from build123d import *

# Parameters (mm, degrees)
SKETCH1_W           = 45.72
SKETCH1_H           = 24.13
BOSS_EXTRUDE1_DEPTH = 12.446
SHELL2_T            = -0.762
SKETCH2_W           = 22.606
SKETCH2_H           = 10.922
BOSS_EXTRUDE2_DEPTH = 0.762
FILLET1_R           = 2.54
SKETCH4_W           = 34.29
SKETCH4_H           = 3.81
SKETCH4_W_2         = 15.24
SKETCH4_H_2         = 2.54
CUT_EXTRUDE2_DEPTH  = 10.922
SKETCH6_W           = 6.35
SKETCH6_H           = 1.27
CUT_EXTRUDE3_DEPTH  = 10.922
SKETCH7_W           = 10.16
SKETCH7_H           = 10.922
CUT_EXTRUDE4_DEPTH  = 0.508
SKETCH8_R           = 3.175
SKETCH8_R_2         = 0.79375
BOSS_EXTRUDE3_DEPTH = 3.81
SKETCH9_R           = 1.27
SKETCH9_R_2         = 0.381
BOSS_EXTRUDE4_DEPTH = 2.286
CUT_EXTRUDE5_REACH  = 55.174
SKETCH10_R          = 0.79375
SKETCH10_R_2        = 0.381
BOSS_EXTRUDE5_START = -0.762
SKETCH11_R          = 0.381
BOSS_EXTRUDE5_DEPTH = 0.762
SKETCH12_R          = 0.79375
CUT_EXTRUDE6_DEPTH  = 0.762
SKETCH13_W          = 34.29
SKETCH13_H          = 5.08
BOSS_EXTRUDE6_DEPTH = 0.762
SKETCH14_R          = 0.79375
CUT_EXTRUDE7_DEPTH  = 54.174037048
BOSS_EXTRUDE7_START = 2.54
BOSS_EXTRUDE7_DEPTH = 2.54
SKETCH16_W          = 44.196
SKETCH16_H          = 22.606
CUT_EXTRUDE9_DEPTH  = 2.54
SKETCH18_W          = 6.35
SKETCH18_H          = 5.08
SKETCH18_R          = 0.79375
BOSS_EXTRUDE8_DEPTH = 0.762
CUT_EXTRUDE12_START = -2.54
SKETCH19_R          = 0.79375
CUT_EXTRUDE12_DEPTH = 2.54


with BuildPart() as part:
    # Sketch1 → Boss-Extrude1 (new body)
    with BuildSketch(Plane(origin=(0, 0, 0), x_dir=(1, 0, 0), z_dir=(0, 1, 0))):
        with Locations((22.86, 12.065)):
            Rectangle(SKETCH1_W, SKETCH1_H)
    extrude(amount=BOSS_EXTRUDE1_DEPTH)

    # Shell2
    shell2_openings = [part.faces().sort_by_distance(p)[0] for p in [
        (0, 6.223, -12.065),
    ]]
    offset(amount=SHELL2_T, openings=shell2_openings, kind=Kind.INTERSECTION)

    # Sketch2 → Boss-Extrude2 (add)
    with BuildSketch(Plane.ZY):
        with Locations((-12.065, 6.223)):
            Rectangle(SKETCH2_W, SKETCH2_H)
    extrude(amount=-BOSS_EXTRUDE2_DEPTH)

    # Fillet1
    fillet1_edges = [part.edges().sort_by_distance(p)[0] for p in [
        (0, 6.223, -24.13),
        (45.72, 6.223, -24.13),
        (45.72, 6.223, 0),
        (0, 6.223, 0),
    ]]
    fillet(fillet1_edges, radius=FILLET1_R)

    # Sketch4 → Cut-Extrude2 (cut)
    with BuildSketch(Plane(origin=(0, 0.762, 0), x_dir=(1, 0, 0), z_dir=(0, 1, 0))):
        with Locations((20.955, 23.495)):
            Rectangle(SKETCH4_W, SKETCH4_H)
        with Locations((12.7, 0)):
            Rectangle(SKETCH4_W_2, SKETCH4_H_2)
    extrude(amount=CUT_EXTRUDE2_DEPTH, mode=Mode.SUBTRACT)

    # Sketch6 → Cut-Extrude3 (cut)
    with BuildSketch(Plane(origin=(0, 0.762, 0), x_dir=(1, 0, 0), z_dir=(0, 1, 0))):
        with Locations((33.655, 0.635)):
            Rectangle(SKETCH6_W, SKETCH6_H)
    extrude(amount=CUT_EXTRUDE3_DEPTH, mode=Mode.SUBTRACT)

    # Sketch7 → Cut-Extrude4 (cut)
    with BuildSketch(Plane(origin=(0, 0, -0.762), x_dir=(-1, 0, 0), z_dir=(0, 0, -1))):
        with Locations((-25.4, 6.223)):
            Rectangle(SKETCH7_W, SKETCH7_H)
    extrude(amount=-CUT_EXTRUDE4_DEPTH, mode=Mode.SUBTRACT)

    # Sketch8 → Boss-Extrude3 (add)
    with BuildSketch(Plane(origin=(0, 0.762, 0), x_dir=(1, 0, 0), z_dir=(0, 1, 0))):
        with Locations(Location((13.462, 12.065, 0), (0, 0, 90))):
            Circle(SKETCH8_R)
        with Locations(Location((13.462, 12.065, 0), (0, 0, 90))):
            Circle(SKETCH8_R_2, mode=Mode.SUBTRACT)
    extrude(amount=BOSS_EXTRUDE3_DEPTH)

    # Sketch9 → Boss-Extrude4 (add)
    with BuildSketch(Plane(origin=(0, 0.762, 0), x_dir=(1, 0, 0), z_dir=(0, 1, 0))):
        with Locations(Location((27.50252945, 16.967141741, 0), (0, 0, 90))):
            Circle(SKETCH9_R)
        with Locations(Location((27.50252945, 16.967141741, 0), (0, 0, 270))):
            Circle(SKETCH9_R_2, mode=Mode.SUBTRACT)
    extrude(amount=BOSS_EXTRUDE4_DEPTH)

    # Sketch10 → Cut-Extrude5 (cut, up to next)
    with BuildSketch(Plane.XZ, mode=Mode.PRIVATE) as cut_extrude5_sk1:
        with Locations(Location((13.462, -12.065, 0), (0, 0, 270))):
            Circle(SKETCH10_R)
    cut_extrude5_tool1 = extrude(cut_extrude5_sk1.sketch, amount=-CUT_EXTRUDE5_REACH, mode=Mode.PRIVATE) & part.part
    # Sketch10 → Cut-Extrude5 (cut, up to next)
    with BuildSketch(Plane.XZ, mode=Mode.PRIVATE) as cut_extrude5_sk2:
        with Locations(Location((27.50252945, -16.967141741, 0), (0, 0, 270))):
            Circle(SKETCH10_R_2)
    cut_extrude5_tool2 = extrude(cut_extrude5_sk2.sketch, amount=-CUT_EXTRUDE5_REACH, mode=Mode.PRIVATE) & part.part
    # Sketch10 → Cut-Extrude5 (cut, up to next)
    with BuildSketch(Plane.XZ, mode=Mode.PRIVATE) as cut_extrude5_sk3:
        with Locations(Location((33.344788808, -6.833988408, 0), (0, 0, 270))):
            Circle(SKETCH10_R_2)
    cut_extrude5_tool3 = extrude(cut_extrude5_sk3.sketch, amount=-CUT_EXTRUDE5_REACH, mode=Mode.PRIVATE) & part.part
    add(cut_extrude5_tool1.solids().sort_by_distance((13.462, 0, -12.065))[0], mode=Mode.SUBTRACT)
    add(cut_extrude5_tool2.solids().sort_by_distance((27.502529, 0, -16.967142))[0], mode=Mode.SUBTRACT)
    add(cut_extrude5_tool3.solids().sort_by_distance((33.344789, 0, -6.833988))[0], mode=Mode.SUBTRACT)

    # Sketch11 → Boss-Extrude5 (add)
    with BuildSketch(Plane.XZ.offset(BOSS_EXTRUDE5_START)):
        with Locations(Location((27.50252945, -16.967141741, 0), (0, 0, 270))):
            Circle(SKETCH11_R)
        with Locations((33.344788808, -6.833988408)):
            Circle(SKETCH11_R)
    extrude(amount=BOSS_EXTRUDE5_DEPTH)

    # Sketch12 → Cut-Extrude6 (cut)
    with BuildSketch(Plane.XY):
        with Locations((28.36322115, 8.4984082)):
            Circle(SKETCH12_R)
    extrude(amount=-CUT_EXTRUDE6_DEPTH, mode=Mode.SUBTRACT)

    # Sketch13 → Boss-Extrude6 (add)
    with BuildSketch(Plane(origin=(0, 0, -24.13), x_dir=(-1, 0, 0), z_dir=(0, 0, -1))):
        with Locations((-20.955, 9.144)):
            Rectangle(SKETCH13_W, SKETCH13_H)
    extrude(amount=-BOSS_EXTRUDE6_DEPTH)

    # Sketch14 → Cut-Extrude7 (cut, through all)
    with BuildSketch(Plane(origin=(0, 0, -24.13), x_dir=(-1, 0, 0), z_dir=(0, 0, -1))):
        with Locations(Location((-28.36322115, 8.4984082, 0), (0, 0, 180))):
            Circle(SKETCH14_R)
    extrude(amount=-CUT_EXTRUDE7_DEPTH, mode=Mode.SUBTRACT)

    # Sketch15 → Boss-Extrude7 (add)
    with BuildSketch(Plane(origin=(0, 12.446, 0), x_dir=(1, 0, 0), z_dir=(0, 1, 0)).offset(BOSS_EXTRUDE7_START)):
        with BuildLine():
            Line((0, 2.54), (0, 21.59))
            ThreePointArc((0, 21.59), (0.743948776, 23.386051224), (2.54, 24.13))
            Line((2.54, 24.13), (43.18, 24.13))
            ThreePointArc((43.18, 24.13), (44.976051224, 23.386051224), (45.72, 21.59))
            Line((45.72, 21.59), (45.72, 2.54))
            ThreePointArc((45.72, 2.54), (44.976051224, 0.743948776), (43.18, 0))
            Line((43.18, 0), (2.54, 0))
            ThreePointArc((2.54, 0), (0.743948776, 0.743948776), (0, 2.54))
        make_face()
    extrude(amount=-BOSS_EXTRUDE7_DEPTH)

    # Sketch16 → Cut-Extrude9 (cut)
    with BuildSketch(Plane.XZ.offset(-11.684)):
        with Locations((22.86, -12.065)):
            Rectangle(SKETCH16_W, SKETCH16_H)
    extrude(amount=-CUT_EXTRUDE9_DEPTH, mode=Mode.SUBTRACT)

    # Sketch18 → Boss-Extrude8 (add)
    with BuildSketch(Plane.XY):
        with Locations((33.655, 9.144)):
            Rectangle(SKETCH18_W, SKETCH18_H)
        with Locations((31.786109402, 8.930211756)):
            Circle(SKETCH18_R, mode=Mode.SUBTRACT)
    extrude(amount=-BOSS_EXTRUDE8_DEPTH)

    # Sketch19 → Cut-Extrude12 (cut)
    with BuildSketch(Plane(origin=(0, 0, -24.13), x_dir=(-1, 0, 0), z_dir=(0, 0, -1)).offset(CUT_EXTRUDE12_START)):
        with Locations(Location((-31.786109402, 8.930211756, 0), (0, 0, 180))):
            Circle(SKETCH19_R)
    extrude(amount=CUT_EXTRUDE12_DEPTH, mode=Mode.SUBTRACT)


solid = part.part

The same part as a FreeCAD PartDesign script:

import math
import FreeCAD as App
import Part
import Sketcher
from FreeCAD import Vector
Q = App.Units.Quantity


def edges_at(feature, points):
    """Names of the edges that pass closest to the given points."""
    edges = feature.Shape.Edges
    near = lambda p: min(range(len(edges)), key=lambda i: edges[i].distToShape(Part.Vertex(*p))[0])
    return sorted({f"Edge{near(p) + 1}" for p in points})


def faces_at(feature, points):
    """Names of the faces that lie closest to the given points."""
    faces = feature.Shape.Faces
    near = lambda p: min(range(len(faces)), key=lambda i: faces[i].distToShape(Part.Vertex(*p))[0])
    return sorted({f"Face{near(p) + 1}" for p in points})


def add_polygon(sketch, points):
    """Adds a closed chain of lines whose ends are joined by coincident constraints."""
    first, n = sketch.GeometryCount, len(points)
    for a, b in zip(points, points[1:] + points[:1]):
        sketch.addGeometry(Part.LineSegment(App.Vector(*a, 0), App.Vector(*b, 0)), False)
    for i in range(n):
        sketch.addConstraint(Sketcher.Constraint("Coincident", first + i, 2, first + (i + 1) % n, 1))

doc = App.newDocument("Part")
params = doc.addObject("Spreadsheet::Sheet", "Params")
for row, (alias, value) in enumerate([
    ("sketch1_width", "1.8 in"),
    ("sketch1_height", "0.95 in"),
    ("pad1_length", "0.49 in"),
    ("thickness_wall", "0.03 in"),
    ("sketch2_width", "0.43 in"),
    ("sketch2_height", "0.89 in"),
    ("pad2_length", "0.03 in"),
    ("fillet_radius", "0.1 in"),
    ("sketch3_width", "0.6 in"),
    ("sketch3_height", "0.1 in"),
    ("sketch3_width2", "1.35 in"),
    ("sketch3_height2", "0.15 in"),
    ("pocket1_length", "0.43 in"),
    ("sketch4_width", "0.25 in"),
    ("sketch4_height", "0.05 in"),
    ("pocket2_length", "0.43 in"),
    ("sketch5_width", "0.4 in"),
    ("sketch5_height", "0.43 in"),
    ("pocket3_length", "0.02 in"),
    ("sketch6_diameter", "0.25 in"),
    ("sketch6_diameter2", "0.0625 in"),
    ("pad3_length", "0.15 in"),
    ("sketch7_diameter", "0.1 in"),
    ("sketch7_diameter2", "0.03 in"),
    ("pad4_length", "0.09 in"),
    ("sketch8_diameter", "0.0625 in"),
    ("sketch9_diameter", "0.03 in"),
    ("sketch10_diameter", "0.03 in"),
    ("sketch11_diameter", "0.03 in"),
    ("pad5_length", "0.03 in"),
    ("sketch12_diameter", "0.0625 in"),
    ("pocket7_length", "0.03 in"),
    ("sketch13_height", "0.2 in"),
    ("sketch13_width", "1.35 in"),
    ("pad6_length", "0.03 in"),
    ("sketch14_diameter", "0.0625 in"),
    ("sketch15_radius", "0.1 in"),
    ("sketch15_width", "1.6 in"),
    ("sketch15_height", "0.75 in"),
    ("pad7_length", "0.1 in"),
    ("sketch16_width", "1.74 in"),
    ("sketch16_height", "0.89 in"),
    ("pocket9_length", "0.1 in"),
    ("sketch17_diameter", "0.0625 in"),
    ("sketch17_height", "0.2 in"),
    ("sketch17_width", "0.25 in"),
    ("pad8_length", "0.03 in"),
    ("sketch18_diameter", "0.0625 in"),
    ("pocket10_length", "0.1 in"),
], start=1):
    params.set(f"A{row}", alias)
    params.set(f"B{row}", "=" + value)
    params.setAlias(f"B{row}", alias)

body = doc.addObject("PartDesign::Body", "Body")

sketch1 = doc.addObject("Sketcher::SketchObject", "Sketch")
body.addObject(sketch1)
sketch1.AttachmentSupport = (doc.XZ_Plane, [""])
sketch1.MapMode = "FlatFace"
add_polygon(sketch1, [(0, -24), (0, 0), (46, 0), (46, -24)])
sketch1.addConstraint([
    Sketcher.Constraint("Vertical", 0),
    Sketcher.Constraint("Horizontal", 1),
    Sketcher.Constraint("Vertical", 2),
    Sketcher.Constraint("Horizontal", 3),
    Sketcher.Constraint("Coincident", 0, 2, -1, 1),
    Sketcher.Constraint("DistanceX", 1, 1, 1, 2, Q("1.8 in")),
    Sketcher.Constraint("DistanceY", 0, 1, 0, 2, Q("0.95 in")),
])
sketch1.setExpression("Constraints[9]", "Params.sketch1_width")
sketch1.setExpression("Constraints[10]", "Params.sketch1_height")
pad1 = doc.addObject("PartDesign::Pad", "Pad")
body.addObject(pad1)
pad1.Profile = sketch1
pad1.setExpression("Length", "Params.pad1_length")
pad1.Reversed = True
doc.recompute()

thickness = doc.addObject("PartDesign::Thickness", "Thickness")
body.addObject(thickness)
thickness.Base = (pad1, faces_at(pad1, [(0, 6.223, -12.065)]))
thickness.setExpression("Value", "Params.thickness_wall")
thickness.Reversed = True
thickness.Join = "Intersection"

sketch2 = doc.addObject("Sketcher::SketchObject", "Sketch001")
body.addObject(sketch2)
sketch2.AttachmentSupport = (doc.YZ_Plane, [""])
sketch2.MapMode = "FlatFace"
add_polygon(sketch2, [(12, -23), (1, -23), (1, -1), (12, -1)])
sketch2.addConstraint([
    Sketcher.Constraint("Horizontal", 0),
    Sketcher.Constraint("Vertical", 1),
    Sketcher.Constraint("Horizontal", 2),
    Sketcher.Constraint("Vertical", 3),
    Sketcher.Constraint("DistanceX", 0, 2, 0, 1, Q("0.43 in")),
    Sketcher.Constraint("DistanceY", 1, 1, 1, 2, Q("0.89 in")),
    Sketcher.Constraint("DistanceX", -1, 1, 0, 2, Q("0.03 in")),
    Sketcher.Constraint("DistanceY", 0, 2, -1, 1, Q("0.92 in")),
])
sketch2.setExpression("Constraints[8]", "Params.sketch2_width")
sketch2.setExpression("Constraints[9]", "Params.sketch2_height")
pad2 = doc.addObject("PartDesign::Pad", "Pad001")
body.addObject(pad2)
pad2.Profile = sketch2
pad2.setExpression("Length", "Params.pad2_length")
doc.recompute()

fillet = doc.addObject("PartDesign::Fillet", "Fillet")
body.addObject(fillet)
fillet.Base = (pad2, edges_at(pad2, [
    (0, 6.223, -24.13),
    (45.72, 6.223, -24.13),
    (45.72, 6.223, 0),
    (0, 6.223, 0),
]))
fillet.setExpression("Radius", "Params.fillet_radius")

sketch3 = doc.addObject("Sketcher::SketchObject", "Sketch002")
body.addObject(sketch3)
sketch3.AttachmentSupport = (doc.XZ_Plane, [""])
sketch3.MapMode = "FlatFace"
sketch3.AttachmentOffset = App.Placement(Vector(0, 0, -0.03 * 25.4), App.Rotation())
add_polygon(sketch3, [(3.8, -25.4), (3.8, -21.6), (38.1, -21.6), (38.1, -25.4)])
add_polygon(sketch3, [(5.1, -1.3), (5.1, 1.3), (20.3, 1.3), (20.3, -1.3)])
sketch3.addConstraint([
    Sketcher.Constraint("Vertical", 0),
    Sketcher.Constraint("Horizontal", 1),
    Sketcher.Constraint("Vertical", 2),
    Sketcher.Constraint("Horizontal", 3),
    Sketcher.Constraint("Vertical", 4),
    Sketcher.Constraint("Horizontal", 5),
    Sketcher.Constraint("Vertical", 6),
    Sketcher.Constraint("Horizontal", 7),
    Sketcher.Constraint("DistanceX", 5, 1, 5, 2, Q("0.6 in")),
    Sketcher.Constraint("DistanceY", 4, 1, 4, 2, Q("0.1 in")),
    Sketcher.Constraint("DistanceY", 2, 2, -1, 1, Q("1 in")),
    Sketcher.Constraint("DistanceX", 1, 1, 1, 2, Q("1.35 in")),
    Sketcher.Constraint("DistanceY", 0, 1, 0, 2, Q("0.15 in")),
    Sketcher.Constraint("DistanceX", -1, 1, 1, 2, Q("1.5 in")),
    Sketcher.Constraint("DistanceX", -1, 1, 4, 2, Q("0.2 in")),
    Sketcher.Constraint("DistanceY", 0, 2, 4, 2, Q("0.9 in")),
])
sketch3.setExpression("Constraints[16]", "Params.sketch3_width")
sketch3.setExpression("Constraints[17]", "Params.sketch3_height")
sketch3.setExpression("Constraints[19]", "Params.sketch3_width2")
sketch3.setExpression("Constraints[20]", "Params.sketch3_height2")
pocket1 = doc.addObject("PartDesign::Pocket", "Pocket")
body.addObject(pocket1)
pocket1.Profile = sketch3
pocket1.setExpression("Length", "Params.pocket1_length")

sketch4 = doc.addObject("Sketcher::SketchObject", "Sketch003")
body.addObject(sketch4)
sketch4.AttachmentSupport = (doc.XZ_Plane, [""])
sketch4.MapMode = "FlatFace"
sketch4.AttachmentOffset = App.Placement(Vector(0, 0, -0.03 * 25.4), App.Rotation())
add_polygon(sketch4, [(30.5, -1.3), (30.5, 0), (36.8, 0), (36.8, -1.3)])
sketch4.addConstraint([
    Sketcher.Constraint("Vertical", 0),
    Sketcher.Constraint("Horizontal", 1),
    Sketcher.Constraint("Vertical", 2),
    Sketcher.Constraint("Horizontal", 3),
    Sketcher.Constraint("PointOnObject", 0, 2, -1),
    Sketcher.Constraint("DistanceX", 1, 1, 1, 2, Q("0.25 in")),
    Sketcher.Constraint("DistanceY", 0, 1, 0, 2, Q("0.05 in")),
    Sketcher.Constraint("DistanceX", -1, 1, 0, 2, Q("1.2 in")),
])
sketch4.setExpression("Constraints[9]", "Params.sketch4_width")
sketch4.setExpression("Constraints[10]", "Params.sketch4_height")
pocket2 = doc.addObject("PartDesign::Pocket", "Pocket001")
body.addObject(pocket2)
pocket2.Profile = sketch4
pocket2.setExpression("Length", "Params.pocket2_length")

sketch5 = doc.addObject("Sketcher::SketchObject", "Sketch004")
body.addObject(sketch5)
sketch5.AttachmentSupport = (doc.XY_Plane, [""])
sketch5.MapMode = "FlatFace"
sketch5.AttachmentOffset = App.Placement(Vector(0, 0, -0.03 * 25.4), App.Rotation())
add_polygon(sketch5, [(30, 12), (30, 1), (20, 1), (20, 12)])
sketch5.addConstraint([
    Sketcher.Constraint("Vertical", 0),
    Sketcher.Constraint("Horizontal", 1),
    Sketcher.Constraint("Vertical", 2),
    Sketcher.Constraint("Horizontal", 3),
    Sketcher.Constraint("DistanceX", 1, 2, 1, 1, Q("0.4 in")),
    Sketcher.Constraint("DistanceY", 0, 2, 0, 1, Q("0.43 in")),
    Sketcher.Constraint("DistanceX", -1, 1, 0, 2, Q("1.2 in")),
    Sketcher.Constraint("DistanceY", -1, 1, 0, 2, Q("0.03 in")),
])
sketch5.setExpression("Constraints[8]", "Params.sketch5_width")
sketch5.setExpression("Constraints[9]", "Params.sketch5_height")
pocket3 = doc.addObject("PartDesign::Pocket", "Pocket002")
body.addObject(pocket3)
pocket3.Profile = sketch5
pocket3.setExpression("Length", "Params.pocket3_length")
pocket3.Reversed = True

sketch6 = doc.addObject("Sketcher::SketchObject", "Sketch005")
body.addObject(sketch6)
sketch6.AttachmentSupport = (doc.XZ_Plane, [""])
sketch6.MapMode = "FlatFace"
sketch6.AttachmentOffset = App.Placement(Vector(0, 0, -0.03 * 25.4), App.Rotation())
sketch6.addGeometry([
    Part.Circle(Vector(13.5, -12.1, 0), Vector(0, 0, 1), 3.2),
    Part.Circle(Vector(13.5, -12.1, 0), Vector(0, 0, 1), 0.8),
], False)
sketch6.addConstraint([
    Sketcher.Constraint("Coincident", 1, 3, 0, 3),
    Sketcher.Constraint("Diameter", 0, Q("0.25 in")),
    Sketcher.Constraint("Diameter", 1, Q("0.0625 in")),
    Sketcher.Constraint("DistanceX", -1, 1, 0, 3, Q("0.53 in")),
    Sketcher.Constraint("DistanceY", 0, 3, -1, 1, Q("0.475 in")),
])
sketch6.setExpression("Constraints[1]", "Params.sketch6_diameter")
sketch6.setExpression("Constraints[2]", "Params.sketch6_diameter2")
pad3 = doc.addObject("PartDesign::Pad", "Pad002")
body.addObject(pad3)
pad3.Profile = sketch6
pad3.setExpression("Length", "Params.pad3_length")
pad3.Reversed = True

sketch7 = doc.addObject("Sketcher::SketchObject", "Sketch006")
body.addObject(sketch7)
sketch7.AttachmentSupport = (doc.XZ_Plane, [""])
sketch7.MapMode = "FlatFace"
sketch7.AttachmentOffset = App.Placement(Vector(0, 0, -0.03 * 25.4), App.Rotation())
sketch7.addGeometry([
    Part.Circle(Vector(27.5, -16.97, 0), Vector(0, 0, 1), 1.27),
    Part.Circle(Vector(27.5, -16.97, 0), Vector(0, 0, 1), 0.38),
], False)
sketch7.addConstraint([
    Sketcher.Constraint("Coincident", 1, 3, 0, 3),
    Sketcher.Constraint("Diameter", 0, Q("0.1 in")),
    Sketcher.Constraint("Diameter", 1, Q("0.03 in")),
    Sketcher.Constraint("DistanceX", -1, 1, 0, 3, Q("27.502529 mm")),
    Sketcher.Constraint("DistanceY", 0, 3, -1, 1, Q("16.967142 mm")),
])
sketch7.setExpression("Constraints[1]", "Params.sketch7_diameter")
sketch7.setExpression("Constraints[2]", "Params.sketch7_diameter2")
pad4 = doc.addObject("PartDesign::Pad", "Pad003")
body.addObject(pad4)
pad4.Profile = sketch7
pad4.setExpression("Length", "Params.pad4_length")
pad4.Reversed = True

sketch8 = doc.addObject("Sketcher::SketchObject", "Sketch007")
body.addObject(sketch8)
sketch8.AttachmentSupport = (doc.XZ_Plane, [""])
sketch8.MapMode = "FlatFace"
sketch8.addGeometry(Part.Circle(Vector(13.5, -12.1, 0), Vector(0, 0, 1), 0.8), False)
sketch8.addConstraint([
    Sketcher.Constraint("Diameter", 0, Q("0.0625 in")),
    Sketcher.Constraint("DistanceX", -1, 1, 0, 3, Q("0.53 in")),
    Sketcher.Constraint("DistanceY", 0, 3, -1, 1, Q("0.475 in")),
])
sketch8.setExpression("Constraints[0]", "Params.sketch8_diameter")
pocket4 = doc.addObject("PartDesign::Pocket", "Pocket003")
body.addObject(pocket4)
pocket4.Profile = sketch8
pocket4.Type = "UpToFirst"

sketch9 = doc.addObject("Sketcher::SketchObject", "Sketch008")
body.addObject(sketch9)
sketch9.AttachmentSupport = (doc.XZ_Plane, [""])
sketch9.MapMode = "FlatFace"
sketch9.addGeometry(Part.Circle(Vector(27.5, -16.97, 0), Vector(0, 0, 1), 0.38), False)
sketch9.addConstraint([
    Sketcher.Constraint("Diameter", 0, Q("0.03 in")),
    Sketcher.Constraint("DistanceX", -1, 1, 0, 3, Q("27.502529 mm")),
    Sketcher.Constraint("DistanceY", 0, 3, -1, 1, Q("16.967142 mm")),
])
sketch9.setExpression("Constraints[0]", "Params.sketch9_diameter")
pocket5 = doc.addObject("PartDesign::Pocket", "Pocket004")
body.addObject(pocket5)
pocket5.Profile = sketch9
pocket5.Type = "UpToFirst"

sketch10 = doc.addObject("Sketcher::SketchObject", "Sketch009")
body.addObject(sketch10)
sketch10.AttachmentSupport = (doc.XZ_Plane, [""])
sketch10.MapMode = "FlatFace"
sketch10.addGeometry(Part.Circle(Vector(33.34, -6.83, 0), Vector(0, 0, 1), 0.38), False)
sketch10.addConstraint([
    Sketcher.Constraint("Diameter", 0, Q("0.03 in")),
    Sketcher.Constraint("DistanceX", -1, 1, 0, 3, Q("33.344789 mm")),
    Sketcher.Constraint("DistanceY", 0, 3, -1, 1, Q("6.833988 mm")),
])
sketch10.setExpression("Constraints[0]", "Params.sketch10_diameter")
pocket6 = doc.addObject("PartDesign::Pocket", "Pocket005")
body.addObject(pocket6)
pocket6.Profile = sketch10
pocket6.Type = "UpToFirst"

sketch11 = doc.addObject("Sketcher::SketchObject", "Sketch010")
body.addObject(sketch11)
sketch11.AttachmentSupport = (doc.XZ_Plane, [""])
sketch11.MapMode = "FlatFace"
sketch11.AttachmentOffset = App.Placement(Vector(0, 0, -0.03 * 25.4), App.Rotation())
sketch11.addGeometry([
    Part.Circle(Vector(27.5, -16.97, 0), Vector(0, 0, 1), 0.38),
    Part.Circle(Vector(33.34, -6.83, 0), Vector(0, 0, 1), 0.38),
], False)
sketch11.addConstraint([
    Sketcher.Constraint("Equal", 0, 1),
    Sketcher.Constraint("Diameter", 0, Q("0.03 in")),
    Sketcher.Constraint("DistanceX", -1, 1, 0, 3, Q("27.502529 mm")),
    Sketcher.Constraint("DistanceY", 0, 3, -1, 1, Q("16.967142 mm")),
    Sketcher.Constraint("DistanceX", -1, 1, 1, 3, Q("33.344789 mm")),
    Sketcher.Constraint("DistanceY", 1, 3, -1, 1, Q("6.833988 mm")),
])
sketch11.setExpression("Constraints[1]", "Params.sketch11_diameter")
pad5 = doc.addObject("PartDesign::Pad", "Pad004")
body.addObject(pad5)
pad5.Profile = sketch11
pad5.setExpression("Length", "Params.pad5_length")

sketch12 = doc.addObject("Sketcher::SketchObject", "Sketch011")
body.addObject(sketch12)
sketch12.AttachmentSupport = (doc.XY_Plane, [""])
sketch12.MapMode = "FlatFace"
sketch12.addGeometry(Part.Circle(Vector(28.4, 8.5, 0), Vector(0, 0, 1), 0.8), False)
sketch12.addConstraint([
    Sketcher.Constraint("Diameter", 0, Q("0.0625 in")),
    Sketcher.Constraint("DistanceX", -1, 1, 0, 3, Q("28.363221 mm")),
    Sketcher.Constraint("DistanceY", -1, 1, 0, 3, Q("8.498408 mm")),
])
sketch12.setExpression("Constraints[0]", "Params.sketch12_diameter")
pocket7 = doc.addObject("PartDesign::Pocket", "Pocket006")
body.addObject(pocket7)
pocket7.Profile = sketch12
pocket7.setExpression("Length", "Params.pocket7_length")

sketch13 = doc.addObject("Sketcher::SketchObject", "Sketch012")
body.addObject(sketch13)
sketch13.AttachmentSupport = (doc.XY_Plane, [""])
sketch13.MapMode = "FlatFace"
sketch13.AttachmentOffset = App.Placement(Vector(0, 0, -0.95 * 25.4), App.Rotation())
add_polygon(sketch13, [(38, 12), (38, 7), (4, 7), (4, 12)])
sketch13.addConstraint([
    Sketcher.Constraint("Vertical", 0),
    Sketcher.Constraint("Horizontal", 1),
    Sketcher.Constraint("Vertical", 2),
    Sketcher.Constraint("Horizontal", 3),
    Sketcher.Constraint("DistanceY", 0, 2, 0, 1, Q("0.2 in")),
    Sketcher.Constraint("DistanceX", 1, 2, 1, 1, Q("1.35 in")),
    Sketcher.Constraint("DistanceX", -1, 1, 0, 2, Q("1.5 in")),
    Sketcher.Constraint("DistanceY", -1, 1, 0, 2, Q("0.26 in")),
])
sketch13.setExpression("Constraints[8]", "Params.sketch13_height")
sketch13.setExpression("Constraints[9]", "Params.sketch13_width")
pad6 = doc.addObject("PartDesign::Pad", "Pad005")
body.addObject(pad6)
pad6.Profile = sketch13
pad6.setExpression("Length", "Params.pad6_length")

sketch14 = doc.addObject("Sketcher::SketchObject", "Sketch013")
body.addObject(sketch14)
sketch14.AttachmentSupport = (doc.XY_Plane, [""])
sketch14.MapMode = "FlatFace"
sketch14.AttachmentOffset = App.Placement(Vector(0, 0, -0.95 * 25.4), App.Rotation())
sketch14.addGeometry(Part.Circle(Vector(28.4, 8.5, 0), Vector(0, 0, 1), 0.8), False)
sketch14.addConstraint([
    Sketcher.Constraint("Diameter", 0, Q("0.0625 in")),
    Sketcher.Constraint("DistanceX", -1, 1, 0, 3, Q("28.363221 mm")),
    Sketcher.Constraint("DistanceY", -1, 1, 0, 3, Q("8.498408 mm")),
])
sketch14.setExpression("Constraints[0]", "Params.sketch14_diameter")
pocket8 = doc.addObject("PartDesign::Pocket", "Pocket007")
body.addObject(pocket8)
pocket8.Profile = sketch14
pocket8.Type = "ThroughAll"
pocket8.Reversed = True

sketch15 = doc.addObject("Sketcher::SketchObject", "Sketch014")
body.addObject(sketch15)
sketch15.AttachmentSupport = (doc.XZ_Plane, [""])
sketch15.MapMode = "FlatFace"
sketch15.AttachmentOffset = App.Placement(Vector(0, 0, -0.59 * 25.4), App.Rotation())
sketch15.addGeometry([
    Part.LineSegment(Vector(0, -21.6, 0), Vector(0, -2.5, 0)),
    Part.ArcOfCircle(Part.Circle(Vector(2.5, -2.5, 0), Vector(0, 0, 1), 2.5), math.radians(90), math.radians(180)),
    Part.LineSegment(Vector(2.5, 0, 0), Vector(43.2, 0, 0)),
    Part.ArcOfCircle(Part.Circle(Vector(43.2, -2.5, 0), Vector(0, 0, 1), 2.5), math.radians(0), math.radians(90)),
    Part.LineSegment(Vector(45.7, -2.5, 0), Vector(45.7, -21.6, 0)),
    Part.ArcOfCircle(Part.Circle(Vector(43.2, -21.6, 0), Vector(0, 0, 1), 2.5), math.radians(-90), math.radians(0)),
    Part.LineSegment(Vector(43.2, -24.1, 0), Vector(2.5, -24.1, 0)),
    Part.ArcOfCircle(Part.Circle(Vector(2.5, -21.6, 0), Vector(0, 0, 1), 2.5), math.radians(-180), math.radians(-90)),
], False)
sketch15.addConstraint([
    Sketcher.Constraint("Tangent", 0, 2, 1, 2),
    Sketcher.Constraint("Tangent", 1, 1, 2, 1),
    Sketcher.Constraint("Tangent", 2, 2, 3, 2),
    Sketcher.Constraint("Tangent", 3, 1, 4, 1),
    Sketcher.Constraint("Tangent", 4, 2, 5, 2),
    Sketcher.Constraint("Tangent", 5, 1, 6, 1),
    Sketcher.Constraint("Tangent", 6, 2, 7, 2),
    Sketcher.Constraint("Tangent", 7, 1, 0, 1),
    Sketcher.Constraint("Vertical", 0),
    Sketcher.Constraint("Horizontal", 2),
    Sketcher.Constraint("Vertical", 4),
    Sketcher.Constraint("Horizontal", 6),
    Sketcher.Constraint("Equal", 1, 3),
    Sketcher.Constraint("Equal", 3, 5),
    Sketcher.Constraint("Equal", 5, 7),
    Sketcher.Constraint("PointOnObject", 0, 2, -2),
    Sketcher.Constraint("PointOnObject", 1, 1, -1),
    Sketcher.Constraint("Radius", 1, Q("0.1 in")),
    Sketcher.Constraint("DistanceX", 2, 1, 2, 2, Q("1.6 in")),
    Sketcher.Constraint("DistanceY", 0, 1, 0, 2, Q("0.75 in")),
])
sketch15.setExpression("Constraints[17]", "Params.sketch15_radius")
sketch15.setExpression("Constraints[18]", "Params.sketch15_width")
sketch15.setExpression("Constraints[19]", "Params.sketch15_height")
pad7 = doc.addObject("PartDesign::Pad", "Pad006")
body.addObject(pad7)
pad7.Profile = sketch15
pad7.setExpression("Length", "Params.pad7_length")

sketch16 = doc.addObject("Sketcher::SketchObject", "Sketch015")
body.addObject(sketch16)
sketch16.AttachmentSupport = (doc.XZ_Plane, [""])
sketch16.MapMode = "FlatFace"
sketch16.AttachmentOffset = App.Placement(Vector(0, 0, -0.46 * 25.4), App.Rotation())
add_polygon(sketch16, [(1, -1), (1, -23), (45, -23), (45, -1)])
sketch16.addConstraint([
    Sketcher.Constraint("Vertical", 0),
    Sketcher.Constraint("Horizontal", 1),
    Sketcher.Constraint("Vertical", 2),
    Sketcher.Constraint("Horizontal", 3),
    Sketcher.Constraint("DistanceX", 1, 1, 1, 2, Q("1.74 in")),
    Sketcher.Constraint("DistanceY", 0, 2, 0, 1, Q("0.89 in")),
    Sketcher.Constraint("DistanceX", -1, 1, 0, 2, Q("0.03 in")),
    Sketcher.Constraint("DistanceY", 0, 2, -1, 1, Q("0.92 in")),
])
sketch16.setExpression("Constraints[8]", "Params.sketch16_width")
sketch16.setExpression("Constraints[9]", "Params.sketch16_height")
pocket9 = doc.addObject("PartDesign::Pocket", "Pocket008")
body.addObject(pocket9)
pocket9.Profile = sketch16
pocket9.setExpression("Length", "Params.pocket9_length")

sketch17 = doc.addObject("Sketcher::SketchObject", "Sketch016")
body.addObject(sketch17)
sketch17.AttachmentSupport = (doc.XY_Plane, [""])
sketch17.MapMode = "FlatFace"
add_polygon(sketch17, [(30.5, 11.7), (30.5, 6.6), (36.8, 6.6), (36.8, 11.7)])
sketch17.addGeometry(Part.Circle(Vector(31.8, 8.9, 0), Vector(0, 0, 1), 0.8), False)
sketch17.addConstraint([
    Sketcher.Constraint("Vertical", 0),
    Sketcher.Constraint("Horizontal", 1),
    Sketcher.Constraint("Vertical", 2),
    Sketcher.Constraint("Horizontal", 3),
    Sketcher.Constraint("Diameter", 4, Q("0.0625 in")),
    Sketcher.Constraint("DistanceY", 0, 2, 0, 1, Q("0.2 in")),
    Sketcher.Constraint("DistanceX", 1, 1, 1, 2, Q("0.25 in")),
    Sketcher.Constraint("DistanceX", -1, 1, 0, 2, Q("1.2 in")),
    Sketcher.Constraint("DistanceY", -1, 1, 0, 2, Q("0.26 in")),
    Sketcher.Constraint("DistanceX", -1, 1, 4, 3, Q("31.786109 mm")),
    Sketcher.Constraint("DistanceY", -1, 1, 4, 3, Q("8.930212 mm")),
])
sketch17.setExpression("Constraints[8]", "Params.sketch17_diameter")
sketch17.setExpression("Constraints[9]", "Params.sketch17_height")
sketch17.setExpression("Constraints[10]", "Params.sketch17_width")
pad8 = doc.addObject("PartDesign::Pad", "Pad007")
body.addObject(pad8)
pad8.Profile = sketch17
pad8.setExpression("Length", "Params.pad8_length")
pad8.Reversed = True

sketch18 = doc.addObject("Sketcher::SketchObject", "Sketch017")
body.addObject(sketch18)
sketch18.AttachmentSupport = (doc.XY_Plane, [""])
sketch18.MapMode = "FlatFace"
sketch18.AttachmentOffset = App.Placement(Vector(0, 0, -0.85 * 25.4), App.Rotation())
sketch18.addGeometry(Part.Circle(Vector(31.8, 8.9, 0), Vector(0, 0, 1), 0.8), False)
sketch18.addConstraint([
    Sketcher.Constraint("Diameter", 0, Q("0.0625 in")),
    Sketcher.Constraint("DistanceX", -1, 1, 0, 3, Q("31.786109 mm")),
    Sketcher.Constraint("DistanceY", -1, 1, 0, 3, Q("8.930212 mm")),
])
sketch18.setExpression("Constraints[0]", "Params.sketch18_diameter")
pocket10 = doc.addObject("PartDesign::Pocket", "Pocket009")
body.addObject(pocket10)
pocket10.Profile = sketch18
pocket10.setExpression("Length", "Params.pocket10_length")

doc.recompute()
